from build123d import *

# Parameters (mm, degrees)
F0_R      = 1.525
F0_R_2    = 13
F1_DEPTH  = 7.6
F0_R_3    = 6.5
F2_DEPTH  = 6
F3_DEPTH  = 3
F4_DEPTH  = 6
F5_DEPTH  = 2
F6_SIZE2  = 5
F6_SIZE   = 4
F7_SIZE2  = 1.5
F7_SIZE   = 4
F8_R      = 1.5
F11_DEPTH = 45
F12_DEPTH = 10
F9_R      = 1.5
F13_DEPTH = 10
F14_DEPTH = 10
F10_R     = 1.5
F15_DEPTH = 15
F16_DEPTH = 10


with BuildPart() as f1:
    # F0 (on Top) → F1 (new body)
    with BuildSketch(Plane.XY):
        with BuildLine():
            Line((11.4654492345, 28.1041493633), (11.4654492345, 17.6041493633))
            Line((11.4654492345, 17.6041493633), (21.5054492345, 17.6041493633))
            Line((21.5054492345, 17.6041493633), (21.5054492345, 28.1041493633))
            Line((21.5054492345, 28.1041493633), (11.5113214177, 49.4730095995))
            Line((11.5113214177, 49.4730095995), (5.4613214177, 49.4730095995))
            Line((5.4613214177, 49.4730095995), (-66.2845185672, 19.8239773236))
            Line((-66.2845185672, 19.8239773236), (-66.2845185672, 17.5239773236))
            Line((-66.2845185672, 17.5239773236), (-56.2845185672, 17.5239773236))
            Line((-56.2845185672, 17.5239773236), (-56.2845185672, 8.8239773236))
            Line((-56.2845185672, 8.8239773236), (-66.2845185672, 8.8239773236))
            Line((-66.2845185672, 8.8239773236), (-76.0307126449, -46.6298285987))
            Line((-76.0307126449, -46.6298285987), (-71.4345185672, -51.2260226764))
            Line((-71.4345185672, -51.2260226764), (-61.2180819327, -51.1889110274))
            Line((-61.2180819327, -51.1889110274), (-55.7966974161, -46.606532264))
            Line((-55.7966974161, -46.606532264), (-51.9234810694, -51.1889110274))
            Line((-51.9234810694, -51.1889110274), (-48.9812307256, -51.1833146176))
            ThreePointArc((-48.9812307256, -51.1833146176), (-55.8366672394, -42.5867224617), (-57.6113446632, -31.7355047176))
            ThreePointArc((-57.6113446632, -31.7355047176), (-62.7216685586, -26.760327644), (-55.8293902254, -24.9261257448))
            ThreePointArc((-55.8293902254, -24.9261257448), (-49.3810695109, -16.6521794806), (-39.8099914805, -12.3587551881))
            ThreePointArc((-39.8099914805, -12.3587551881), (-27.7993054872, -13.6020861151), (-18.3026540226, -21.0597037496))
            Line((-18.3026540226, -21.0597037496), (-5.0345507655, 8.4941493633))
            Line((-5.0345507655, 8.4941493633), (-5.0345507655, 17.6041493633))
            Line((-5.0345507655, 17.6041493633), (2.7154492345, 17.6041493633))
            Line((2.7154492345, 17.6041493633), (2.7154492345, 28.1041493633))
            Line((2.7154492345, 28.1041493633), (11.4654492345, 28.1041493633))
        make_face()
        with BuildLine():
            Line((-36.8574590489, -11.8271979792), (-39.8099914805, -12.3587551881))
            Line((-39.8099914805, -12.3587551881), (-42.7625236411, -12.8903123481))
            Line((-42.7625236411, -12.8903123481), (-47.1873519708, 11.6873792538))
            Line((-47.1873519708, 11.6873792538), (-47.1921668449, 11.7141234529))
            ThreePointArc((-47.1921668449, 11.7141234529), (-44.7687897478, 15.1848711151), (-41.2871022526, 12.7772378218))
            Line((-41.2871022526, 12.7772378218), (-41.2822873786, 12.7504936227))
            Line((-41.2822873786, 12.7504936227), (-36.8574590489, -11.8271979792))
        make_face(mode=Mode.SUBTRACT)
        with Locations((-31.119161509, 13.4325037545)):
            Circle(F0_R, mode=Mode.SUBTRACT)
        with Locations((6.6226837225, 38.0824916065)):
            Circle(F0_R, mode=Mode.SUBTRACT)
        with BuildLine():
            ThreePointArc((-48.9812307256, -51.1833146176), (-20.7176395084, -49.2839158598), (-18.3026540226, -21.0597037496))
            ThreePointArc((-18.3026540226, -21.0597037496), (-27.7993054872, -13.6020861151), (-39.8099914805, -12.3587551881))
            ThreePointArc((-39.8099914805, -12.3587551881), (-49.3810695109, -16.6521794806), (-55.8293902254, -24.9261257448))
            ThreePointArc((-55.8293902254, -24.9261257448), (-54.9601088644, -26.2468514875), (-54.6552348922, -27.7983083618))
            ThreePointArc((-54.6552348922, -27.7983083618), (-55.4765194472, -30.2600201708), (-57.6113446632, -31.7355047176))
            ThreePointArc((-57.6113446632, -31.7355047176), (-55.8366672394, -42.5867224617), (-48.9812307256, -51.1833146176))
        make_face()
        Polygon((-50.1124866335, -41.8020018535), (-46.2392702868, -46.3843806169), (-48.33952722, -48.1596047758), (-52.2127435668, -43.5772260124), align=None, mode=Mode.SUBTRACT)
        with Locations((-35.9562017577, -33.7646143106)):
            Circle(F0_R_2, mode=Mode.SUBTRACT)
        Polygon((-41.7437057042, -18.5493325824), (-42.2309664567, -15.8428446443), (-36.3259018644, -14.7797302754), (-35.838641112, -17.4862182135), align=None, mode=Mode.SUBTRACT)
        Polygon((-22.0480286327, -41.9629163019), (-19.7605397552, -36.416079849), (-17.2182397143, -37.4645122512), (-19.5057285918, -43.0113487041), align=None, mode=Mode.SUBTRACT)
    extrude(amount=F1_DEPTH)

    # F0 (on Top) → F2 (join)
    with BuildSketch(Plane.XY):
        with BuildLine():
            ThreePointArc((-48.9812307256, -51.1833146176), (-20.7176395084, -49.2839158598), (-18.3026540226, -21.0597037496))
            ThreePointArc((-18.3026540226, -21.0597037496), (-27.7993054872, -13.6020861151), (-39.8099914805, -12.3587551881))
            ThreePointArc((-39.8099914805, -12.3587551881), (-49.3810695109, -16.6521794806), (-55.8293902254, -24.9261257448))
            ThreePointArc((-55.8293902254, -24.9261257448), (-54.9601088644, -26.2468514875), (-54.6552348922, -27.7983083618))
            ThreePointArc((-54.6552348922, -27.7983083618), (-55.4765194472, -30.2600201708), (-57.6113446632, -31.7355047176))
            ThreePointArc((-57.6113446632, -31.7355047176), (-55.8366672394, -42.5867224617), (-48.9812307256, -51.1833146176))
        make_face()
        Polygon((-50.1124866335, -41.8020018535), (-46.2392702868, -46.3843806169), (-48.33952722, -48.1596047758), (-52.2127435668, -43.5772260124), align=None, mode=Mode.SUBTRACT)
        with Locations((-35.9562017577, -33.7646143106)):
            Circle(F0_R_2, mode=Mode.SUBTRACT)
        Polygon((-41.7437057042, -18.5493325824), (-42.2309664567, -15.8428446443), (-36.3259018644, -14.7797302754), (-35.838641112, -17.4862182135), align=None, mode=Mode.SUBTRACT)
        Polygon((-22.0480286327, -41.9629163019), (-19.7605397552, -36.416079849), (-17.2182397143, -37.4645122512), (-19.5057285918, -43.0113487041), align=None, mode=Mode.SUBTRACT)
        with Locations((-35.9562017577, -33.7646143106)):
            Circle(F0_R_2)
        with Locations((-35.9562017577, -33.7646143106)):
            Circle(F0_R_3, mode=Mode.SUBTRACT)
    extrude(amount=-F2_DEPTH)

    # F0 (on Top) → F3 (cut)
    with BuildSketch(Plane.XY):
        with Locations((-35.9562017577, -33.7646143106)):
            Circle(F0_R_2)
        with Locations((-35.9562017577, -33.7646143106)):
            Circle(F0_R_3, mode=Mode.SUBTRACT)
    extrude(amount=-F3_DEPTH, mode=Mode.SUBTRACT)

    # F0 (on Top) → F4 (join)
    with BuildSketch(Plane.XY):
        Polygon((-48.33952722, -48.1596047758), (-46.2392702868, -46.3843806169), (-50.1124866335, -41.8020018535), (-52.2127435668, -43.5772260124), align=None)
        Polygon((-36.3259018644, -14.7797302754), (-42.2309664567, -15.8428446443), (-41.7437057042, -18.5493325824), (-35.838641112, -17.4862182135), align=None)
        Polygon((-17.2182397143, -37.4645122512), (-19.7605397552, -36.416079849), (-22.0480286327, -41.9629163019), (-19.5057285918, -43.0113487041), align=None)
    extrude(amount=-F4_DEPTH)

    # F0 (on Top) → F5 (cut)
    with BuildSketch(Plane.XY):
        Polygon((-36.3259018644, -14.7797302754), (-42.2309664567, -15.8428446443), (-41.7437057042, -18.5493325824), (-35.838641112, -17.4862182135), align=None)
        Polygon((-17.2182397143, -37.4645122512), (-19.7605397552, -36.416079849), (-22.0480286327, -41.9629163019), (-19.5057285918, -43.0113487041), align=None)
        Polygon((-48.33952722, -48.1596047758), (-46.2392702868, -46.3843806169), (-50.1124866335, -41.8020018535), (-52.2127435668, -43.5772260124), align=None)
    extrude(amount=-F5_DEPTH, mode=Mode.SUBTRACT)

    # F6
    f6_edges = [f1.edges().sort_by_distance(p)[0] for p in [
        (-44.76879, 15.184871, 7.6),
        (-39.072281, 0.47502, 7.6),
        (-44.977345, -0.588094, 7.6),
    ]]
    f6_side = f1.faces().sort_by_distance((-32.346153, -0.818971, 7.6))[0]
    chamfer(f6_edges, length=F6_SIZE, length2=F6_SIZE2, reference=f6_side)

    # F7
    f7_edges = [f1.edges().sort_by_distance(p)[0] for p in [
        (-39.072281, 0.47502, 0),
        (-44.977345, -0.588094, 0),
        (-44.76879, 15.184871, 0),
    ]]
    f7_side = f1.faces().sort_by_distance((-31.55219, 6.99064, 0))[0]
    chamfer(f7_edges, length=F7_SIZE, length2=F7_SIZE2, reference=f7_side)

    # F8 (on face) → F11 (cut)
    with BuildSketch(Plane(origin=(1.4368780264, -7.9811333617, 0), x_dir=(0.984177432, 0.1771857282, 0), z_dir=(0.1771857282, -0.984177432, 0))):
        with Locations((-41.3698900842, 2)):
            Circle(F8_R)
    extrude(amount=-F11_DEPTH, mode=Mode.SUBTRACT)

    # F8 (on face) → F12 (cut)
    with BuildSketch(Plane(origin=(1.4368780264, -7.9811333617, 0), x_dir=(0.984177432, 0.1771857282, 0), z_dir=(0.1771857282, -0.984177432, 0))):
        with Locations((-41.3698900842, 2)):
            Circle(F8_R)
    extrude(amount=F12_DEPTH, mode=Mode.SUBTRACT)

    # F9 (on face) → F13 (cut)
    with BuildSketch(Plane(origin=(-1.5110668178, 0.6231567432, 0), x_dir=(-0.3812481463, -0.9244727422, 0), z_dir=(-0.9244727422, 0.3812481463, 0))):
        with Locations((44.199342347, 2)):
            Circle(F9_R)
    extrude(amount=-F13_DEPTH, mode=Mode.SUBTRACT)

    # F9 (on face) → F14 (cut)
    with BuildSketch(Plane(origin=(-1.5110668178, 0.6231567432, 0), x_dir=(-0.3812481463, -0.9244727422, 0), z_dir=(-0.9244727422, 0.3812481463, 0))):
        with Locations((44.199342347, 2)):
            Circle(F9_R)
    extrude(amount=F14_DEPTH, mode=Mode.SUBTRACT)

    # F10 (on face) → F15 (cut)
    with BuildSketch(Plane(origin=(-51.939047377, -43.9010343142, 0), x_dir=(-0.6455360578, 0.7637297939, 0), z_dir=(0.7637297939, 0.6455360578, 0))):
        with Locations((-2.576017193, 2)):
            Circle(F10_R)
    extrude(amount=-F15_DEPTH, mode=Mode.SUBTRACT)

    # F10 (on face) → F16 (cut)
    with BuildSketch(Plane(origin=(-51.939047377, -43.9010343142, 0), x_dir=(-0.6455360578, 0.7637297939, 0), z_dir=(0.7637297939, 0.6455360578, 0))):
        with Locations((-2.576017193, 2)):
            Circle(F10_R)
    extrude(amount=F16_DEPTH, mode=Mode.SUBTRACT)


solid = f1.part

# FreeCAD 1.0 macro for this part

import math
import FreeCAD as App
import Part
import Sketcher

V = App.Vector
Q = App.Units.Quantity


def edges_at(feature, points):
    """Names of the edges that pass closest to the given points."""
    edges = feature.Shape.Edges
    near = lambda p: min(range(len(edges)), key=lambda i: edges[i].distToShape(Part.Vertex(*p))[0])
    return sorted({f"Edge{near(p) + 1}" for p in points})


def add_polygon(sketch, points):
    """Adds a closed chain of lines whose ends are joined by coincident constraints."""
    first, n = sketch.GeometryCount, len(points)
    for a, b in zip(points, points[1:] + points[:1]):
        sketch.addGeometry(Part.LineSegment(App.Vector(*a, 0), App.Vector(*b, 0)), False)
    for i in range(n):
        sketch.addConstraint(Sketcher.Constraint("Coincident", first + i, 2, first + (i + 1) % n, 1))

doc = App.newDocument("Part")
params = doc.addObject("Spreadsheet::Sheet", "Params")
for row, (alias, value) in enumerate([
    ("sketch1_diameter", "26 mm"),
    ("sketch1_radius", "4.1 mm"),
    ("sketch1_radius2", "4.1 mm"),
    ("sketch1_diameter2", "3.05 mm"),
    ("sketch1_diameter3", "3.05 mm"),
    ("pad1_length", "7.6 mm"),
    ("sketch2_diameter", "13 mm"),
    ("sketch2_radius", "4.1 mm"),
    ("sketch2_radius2", "21.75 mm"),
    ("sketch2_length", "6 mm"),
    ("sketch2_length2", "2.75 mm"),
    ("pad2_length", "6 mm"),
    ("sketch3_diameter", "26 mm"),
    ("sketch3_diameter2", "13 mm"),
    ("pocket1_length", "3 mm"),
    ("sketch4_length", "6 mm"),
    ("sketch4_length2", "2.75 mm"),
    ("pad3_length", "6 mm"),
    ("sketch5_length", "6 mm"),
    ("sketch5_length2", "2.75 mm"),
    ("pocket2_length", "2 mm"),
    ("chamfer_size", "4 mm"),
    ("chamfer_size2", "5 mm"),
    ("chamfer2_size", "4 mm"),
    ("chamfer2_size2", "1.5 mm"),
    ("sketch6_diameter", "3 mm"),
    ("pocket3_length", "45 mm"),
    ("sketch7_diameter", "3 mm"),
    ("pocket4_length", "10 mm"),
    ("sketch8_diameter", "3 mm"),
    ("pocket5_length", "10 mm"),
    ("sketch9_diameter", "3 mm"),
    ("pocket6_length", "10 mm"),
    ("sketch10_diameter", "3 mm"),
    ("pocket7_length", "15 mm"),
    ("sketch11_diameter", "3 mm"),
    ("pocket8_length", "10 mm"),
], start=1):
    params.set(f"A{row}", alias)
    params.set(f"B{row}", "=" + value)
    params.setAlias(f"B{row}", alias)

body = doc.addObject("PartDesign::Body", "Body")

# Sketch on XY plane
sketch1 = body.newObject("Sketcher::SketchObject", "Sketch")
sketch1.AttachmentSupport = (doc.getObject("XY_Plane"), [""])
sketch1.MapMode = "FlatFace"
sketch1.addGeometry(Part.LineSegment(V(-5.034551, 8.494149, 0), V(-5.034551, 17.604149, 0)), False)  # 0
sketch1.addGeometry(Part.LineSegment(V(-5.034551, 17.604149, 0), V(2.715449, 17.604149, 0)), False)  # 1
sketch1.addGeometry(Part.LineSegment(V(2.715449, 17.604149, 0), V(2.715449, 28.104149, 0)), False)  # 2
sketch1.addGeometry(Part.LineSegment(V(2.715449, 28.104149, 0), V(11.465449, 28.104149, 0)), False)  # 3
sketch1.addGeometry(Part.LineSegment(V(11.465449, 28.104149, 0), V(11.465449, 17.604149, 0)), False)  # 4
sketch1.addGeometry(Part.LineSegment(V(11.465449, 17.604149, 0), V(21.505449, 17.604149, 0)), False)  # 5
sketch1.addGeometry(Part.LineSegment(V(21.505449, 17.604149, 0), V(21.505449, 28.104149, 0)), False)  # 6
sketch1.addGeometry(Part.LineSegment(V(21.505449, 28.104149, 0), V(11.511321, 49.47301, 0)), False)  # 7
sketch1.addGeometry(Part.LineSegment(V(11.511321, 49.47301, 0), V(5.461321, 49.47301, 0)), False)  # 8
sketch1.addGeometry(Part.LineSegment(V(5.461321, 49.47301, 0), V(-66.284519, 19.823977, 0)), False)  # 9
sketch1.addGeometry(Part.LineSegment(V(-66.284519, 19.823977, 0), V(-66.284519, 17.523977, 0)), False)  # 10
sketch1.addGeometry(Part.LineSegment(V(-66.284519, 17.523977, 0), V(-56.284519, 17.523977, 0)), False)  # 11
sketch1.addGeometry(Part.LineSegment(V(-56.284519, 17.523977, 0), V(-56.284519, 8.823977, 0)), False)  # 12
sketch1.addGeometry(Part.LineSegment(V(-56.284519, 8.823977, 0), V(-66.284519, 8.823977, 0)), False)  # 13
sketch1.addGeometry(Part.LineSegment(V(-66.284519, 8.823977, 0), V(-76.030713, -46.629829, 0)), False)  # 14
sketch1.addGeometry(Part.LineSegment(V(-76.030713, -46.629829, 0), V(-71.434519, -51.226023, 0)), False)  # 15
sketch1.addGeometry(Part.LineSegment(V(-71.434519, -51.226023, 0), V(-61.218082, -51.188911, 0)), False)  # 16
sketch1.addGeometry(Part.LineSegment(V(-61.218082, -51.188911, 0), V(-55.796697, -46.606532, 0)), False)  # 17
sketch1.addGeometry(Part.LineSegment(V(-55.796697, -46.606532, 0), V(-51.923481, -51.188911, 0)), False)  # 18
sketch1.addGeometry(Part.LineSegment(V(-51.923481, -51.188911, 0), V(-48.981231, -51.183315, 0)), False)  # 19
sketch1.addGeometry(Part.ArcOfCircle(Part.Circle(V(-35.956202, -33.764614, 0), V(0, 0, 1), 21.75), math.radians(-126.787716), math.radians(35.741822)), False)  # 20
sketch1.addGeometry(Part.LineSegment(V(-18.302654, -21.059704, 0), V(-5.034551, 8.494149, 0)), False)  # 21
add_polygon(sketch1, [(-52.212744, -43.577226), (-50.112487, -41.802002), (-46.23927, -46.384381), (-48.339527, -48.159605)])  # lines 22-25
sketch1.addGeometry(Part.ArcOfCircle(Part.Circle(V(-58.755235, -27.798308, 0), V(0, 0, 1), 4.1), math.radians(0), math.radians(286.200388)), False)  # 26
sketch1.addGeometry(Part.ArcOfCircle(Part.Circle(V(-58.755235, -27.798308, 0), V(0, 0, 1), 4.1), math.radians(-73.799612), math.radians(0)), False)  # 27
sketch1.addGeometry(Part.Circle(V(-35.956202, -33.764614, 0), V(0, 0, 1), 13), False)  # 28
add_polygon(sketch1, [(-35.838641, -17.486218), (-41.743706, -18.549333), (-42.230966, -15.842845), (-36.325902, -14.77973)])  # lines 29-32
add_polygon(sketch1, [(-19.505729, -43.011349), (-22.048029, -41.962916), (-19.76054, -36.41608), (-17.21824, -37.464512)])  # lines 33-36
sketch1.addGeometry(Part.LineSegment(V(-36.857459, -11.827198, 0), V(-39.809991, -12.358755, 0)), False)  # 37
sketch1.addGeometry(Part.LineSegment(V(-39.809991, -12.358755, 0), V(-42.762524, -12.890312, 0)), False)  # 38
sketch1.addGeometry(Part.LineSegment(V(-42.762524, -12.890312, 0), V(-47.187352, 11.687379, 0)), False)  # 39
sketch1.addGeometry(Part.LineSegment(V(-47.187352, 11.687379, 0), V(-47.192167, 11.714123, 0)), False)  # 40
sketch1.addGeometry(Part.ArcOfCircle(Part.Circle(V(-44.237227, 12.232309, 0), V(0, 0, 1), 3.000031), math.radians(10.465372), math.radians(189.946387)), False)  # 41
sketch1.addGeometry(Part.LineSegment(V(-41.287102, 12.777238, 0), V(-41.282287, 12.750494, 0)), False)  # 42
sketch1.addGeometry(Part.LineSegment(V(-41.282287, 12.750494, 0), V(-36.857459, -11.827198, 0)), False)  # 43
sketch1.addGeometry(Part.Circle(V(-31.119162, 13.432504, 0), V(0, 0, 1), 1.525), False)  # 44
sketch1.addGeometry(Part.Circle(V(6.622684, 38.082492, 0), V(0, 0, 1), 1.525), False)  # 45
sketch1.addConstraint([
    Sketcher.Constraint("Coincident", 0, 2, 1, 1),
    Sketcher.Constraint("Coincident", 1, 2, 2, 1),
    Sketcher.Constraint("Coincident", 2, 2, 3, 1),
    Sketcher.Constraint("Coincident", 3, 2, 4, 1),
    Sketcher.Constraint("Coincident", 4, 2, 5, 1),
    Sketcher.Constraint("Coincident", 5, 2, 6, 1),
    Sketcher.Constraint("Coincident", 6, 2, 7, 1),
    Sketcher.Constraint("Coincident", 7, 2, 8, 1),
    Sketcher.Constraint("Coincident", 8, 2, 9, 1),
    Sketcher.Constraint("Coincident", 9, 2, 10, 1),
    Sketcher.Constraint("Coincident", 10, 2, 11, 1),
    Sketcher.Constraint("Coincident", 11, 2, 12, 1),
    Sketcher.Constraint("Coincident", 12, 2, 13, 1),
    Sketcher.Constraint("Coincident", 13, 2, 14, 1),
    Sketcher.Constraint("Coincident", 14, 2, 15, 1),
    Sketcher.Constraint("Coincident", 15, 2, 16, 1),
    Sketcher.Constraint("Coincident", 16, 2, 17, 1),
    Sketcher.Constraint("Coincident", 17, 2, 18, 1),
    Sketcher.Constraint("Coincident", 18, 2, 19, 1),
    Sketcher.Constraint("Coincident", 19, 2, 20, 1),
    Sketcher.Constraint("Coincident", 20, 2, 21, 1),
    Sketcher.Constraint("Coincident", 21, 2, 0, 1),
    Sketcher.Constraint("Coincident", 26, 1, 27, 2),
    Sketcher.Constraint("Coincident", 27, 1, 26, 2),
    Sketcher.Constraint("Coincident", 37, 2, 38, 1),
    Sketcher.Constraint("Coincident", 38, 2, 39, 1),
    Sketcher.Constraint("Coincident", 39, 2, 40, 1),
    Sketcher.Constraint("Coincident", 40, 2, 41, 2),
    Sketcher.Constraint("Coincident", 41, 1, 42, 1),
    Sketcher.Constraint("Coincident", 42, 2, 43, 1),
    Sketcher.Constraint("Coincident", 43, 2, 37, 1),
    Sketcher.Constraint("Vertical", 0),
    Sketcher.Constraint("Horizontal", 1),
    Sketcher.Constraint("Vertical", 2),
    Sketcher.Constraint("Horizontal", 3),
    Sketcher.Constraint("Vertical", 4),
    Sketcher.Constraint("Horizontal", 5),
    Sketcher.Constraint("Vertical", 6),
    Sketcher.Constraint("Horizontal", 8),
    Sketcher.Constraint("Vertical", 10),
    Sketcher.Constraint("Horizontal", 11),
    Sketcher.Constraint("Vertical", 12),
    Sketcher.Constraint("Horizontal", 13),
    Sketcher.Constraint("Coincident", 28, 3, 20, 3),
    Sketcher.Constraint("Diameter", 28, Q("26 mm")),
    Sketcher.Constraint("Radius", 26, Q("4.1 mm")),
    Sketcher.Constraint("Radius", 27, Q("4.1 mm")),
    Sketcher.Constraint("Diameter", 44, Q("3.05 mm")),
    Sketcher.Constraint("Diameter", 45, Q("3.05 mm")),
    Sketcher.Constraint("DistanceX", 11, 1, 11, 2, Q("10 mm")),
    Sketcher.Constraint("DistanceX", 13, 2, 13, 1, Q("10 mm")),
    Sketcher.Constraint("Radius", 20, Q("21.75 mm")),
    Sketcher.Constraint("Distance", 18, Q("6 mm")),
    Sketcher.Constraint("Distance", 23, Q("6 mm")),
    Sketcher.Constraint("Distance", 25, Q("6 mm")),
    Sketcher.Constraint("Distance", 29, Q("6 mm")),
    Sketcher.Constraint("Distance", 31, Q("6 mm")),
    Sketcher.Constraint("Distance", 34, Q("6 mm")),
    Sketcher.Constraint("Distance", 36, Q("6 mm")),
    Sketcher.Constraint("Distance", 37, Q("3 mm")),
    Sketcher.Constraint("Distance", 38, Q("3 mm")),
    Sketcher.Constraint("DistanceY", 2, 1, 2, 2, Q("10.5 mm")),
    Sketcher.Constraint("DistanceY", 4, 2, 4, 1, Q("10.5 mm")),
    Sketcher.Constraint("DistanceY", 6, 1, 6, 2, Q("10.5 mm")),
    Sketcher.Constraint("DistanceY", 10, 2, 10, 1, Q("2.3 mm")),
    Sketcher.Constraint("DistanceY", 12, 2, 12, 1, Q("8.7 mm")),
    Sketcher.Constraint("Distance", 15, Q("6.5 mm")),
    Sketcher.Constraint("DistanceX", 1, 1, 1, 2, Q("7.75 mm")),
    Sketcher.Constraint("DistanceX", 3, 1, 3, 2, Q("8.75 mm")),
    Sketcher.Constraint("DistanceX", 5, 1, 5, 2, Q("10.04 mm")),
    Sketcher.Constraint("DistanceX", 8, 2, 8, 1, Q("6.05 mm")),
    Sketcher.Constraint("DistanceY", 0, 1, 0, 2, Q("9.11 mm")),
    Sketcher.Constraint("Distance", 22, Q("2.75 mm")),
    Sketcher.Constraint("Distance", 24, Q("2.75 mm")),
    Sketcher.Constraint("Distance", 30, Q("2.75 mm")),
    Sketcher.Constraint("Distance", 32, Q("2.75 mm")),
    Sketcher.Constraint("Distance", 33, Q("2.75 mm")),
    Sketcher.Constraint("Distance", 35, Q("2.75 mm")),
    Sketcher.Constraint("Radius", 41, Q("3.000031 mm")),
    Sketcher.Constraint("DistanceY", 22, 2, -1, 1, Q("41.802002 mm")),
    Sketcher.Constraint("DistanceX", 20, 3, -1, 1, Q("35.956202 mm")),
    Sketcher.Constraint("DistanceX", 31, 2, -1, 1, Q("36.325902 mm")),
    Sketcher.Constraint("DistanceY", 26, 3, 45, 3, Q("65.8808 mm")),
    Sketcher.Constraint("DistanceX", 16, 2, 18, 2, Q("9.294601 mm")),
    Sketcher.Constraint("DistanceY", 19, 2, 20, 3, Q("17.4187 mm")),
    Sketcher.Constraint("DistanceX", 27, 1, 25, 2, Q("5.398601 mm")),
    Sketcher.Constraint("DistanceY", 33, 2, 20, 3, Q("8.198302 mm")),
    Sketcher.Constraint("DistanceX", 24, 2, 33, 2, Q("26.291499 mm")),
    Sketcher.Constraint("DistanceX", 32, 2, 34, 2, Q("16.078101 mm")),
    Sketcher.Constraint("DistanceX", 34, 2, 35, 2, Q("2.5423 mm")),
    Sketcher.Constraint("DistanceY", 12, 2, 39, 2, Q("2.863402 mm")),
    Sketcher.Constraint("Distance", 7, Q("23.590481 mm")),
    Sketcher.Constraint("DistanceY", 26, 3, -1, 1, Q("27.798308 mm")),
    Sketcher.Constraint("DistanceY", -1, 1, 41, 3, Q("12.232309 mm")),
    Sketcher.Constraint("DistanceX", 44, 3, -1, 1, Q("31.119162 mm")),
    Sketcher.Constraint("DistanceX", 0, 2, -1, 1, Q("5.034551 mm")),
    Sketcher.Constraint("DistanceY", -1, 1, 0, 2, Q("17.604149 mm")),
    Sketcher.Constraint("DistanceX", -1, 1, 7, 2, Q("11.511321 mm")),
    Sketcher.Constraint("DistanceX", 9, 2, -1, 1, Q("66.284519 mm")),
    Sketcher.Constraint("DistanceY", 14, 2, -1, 1, Q("46.629829 mm")),
    Sketcher.Constraint("DistanceX", 15, 2, -1, 1, Q("71.434519 mm")),
    Sketcher.Constraint("DistanceX", 16, 2, -1, 1, Q("61.218082 mm")),
    Sketcher.Constraint("DistanceY", 16, 2, -1, 1, Q("51.188911 mm")),
    Sketcher.Constraint("DistanceY", 18, 2, -1, 1, Q("51.188911 mm")),
    Sketcher.Constraint("DistanceX", 23, 2, -1, 1, Q("46.23927 mm")),
    Sketcher.Constraint("DistanceY", 23, 2, -1, 1, Q("46.384381 mm")),
    Sketcher.Constraint("DistanceY", 26, 1, -1, 1, Q("27.798308 mm")),
    Sketcher.Constraint("DistanceY", 31, 2, -1, 1, Q("14.77973 mm")),
    Sketcher.Constraint("DistanceX", 32, 2, -1, 1, Q("35.838641 mm")),
    Sketcher.Constraint("DistanceX", 33, 2, -1, 1, Q("22.048029 mm")),
    Sketcher.Constraint("DistanceY", 34, 2, -1, 1, Q("36.41608 mm")),
    Sketcher.Constraint("DistanceX", 37, 2, -1, 1, Q("39.809991 mm")),
    Sketcher.Constraint("DistanceX", 39, 2, -1, 1, Q("47.187352 mm")),
    Sketcher.Constraint("DistanceY", -1, 1, 39, 2, Q("11.687379 mm")),
    Sketcher.Constraint("DistanceX", 43, 2, -1, 1, Q("36.857459 mm")),
    Sketcher.Constraint("DistanceY", 20, 3, 44, 3, Q("47.197118 mm")),
    Sketcher.Constraint("DistanceX", 41, 3, 45, 3, Q("50.859911 mm")),
    Sketcher.Constraint("DistanceX", 26, 3, 45, 3, Q("65.377919 mm")),
    Sketcher.Constraint("DistanceX", 9, 2, 41, 3, Q("22.047291 mm")),
    Sketcher.Constraint("DistanceX", 14, 2, 20, 3, Q("40.074511 mm")),
    Sketcher.Constraint("DistanceY", 16, 2, 17, 2, Q("4.582379 mm")),
    Sketcher.Constraint("DistanceY", 20, 3, 20, 2, Q("12.704911 mm")),
    Sketcher.Constraint("DistanceX", 26, 1, 29, 2, Q("12.911529 mm")),
    Sketcher.Constraint("DistanceY", 30, 2, 37, 2, Q("3.484089 mm")),
    Sketcher.Constraint("DistanceY", 29, 2, 38, 2, Q("5.65902 mm")),
    Sketcher.Constraint("DistanceX", 40, 2, 41, 3, Q("2.95494 mm")),
    Sketcher.Constraint("DistanceY", 41, 3, 41, 1, Q("0.544929 mm")),
    Sketcher.Constraint("DistanceX", 41, 3, 42, 2, Q("2.95494 mm")),
    Sketcher.Constraint("DistanceY", 40, 2, 42, 2, Q("1.03637 mm")),
])
sketch1.setExpression("Constraints[56]", "Params.sketch1_diameter")
sketch1.setExpression("Constraints[57]", "Params.sketch1_radius")
sketch1.setExpression("Constraints[58]", "Params.sketch1_radius2")
sketch1.setExpression("Constraints[59]", "Params.sketch1_diameter2")
sketch1.setExpression("Constraints[60]", "Params.sketch1_diameter3")
pad1 = body.newObject("PartDesign::Pad", "Pad")
pad1.Profile = sketch1
pad1.setExpression("Length", "Params.pad1_length")

# Sketch on XY plane
sketch2 = body.newObject("Sketcher::SketchObject", "Sketch001")
sketch2.AttachmentSupport = (doc.getObject("XY_Plane"), [""])
sketch2.MapMode = "FlatFace"
sketch2.addGeometry(Part.ArcOfCircle(Part.Circle(V(-36, -33.8, 0), V(0, 0, 1), 21.8), math.radians(36), math.radians(100)), False)  # 0
sketch2.addGeometry(Part.ArcOfCircle(Part.Circle(V(-36, -33.8, 0), V(0, 0, 1), 21.8), math.radians(100), math.radians(156)), False)  # 1
sketch2.addGeometry(Part.ArcOfCircle(Part.Circle(V(-58.8, -27.8, 0), V(0, 0, 1), 4.1), math.radians(0), math.radians(44)), False)  # 2
sketch2.addGeometry(Part.ArcOfCircle(Part.Circle(V(-58.8, -27.8, 0), V(0, 0, 1), 4.1), math.radians(-74), math.radians(0)), False)  # 3
sketch2.addGeometry(Part.ArcOfCircle(Part.Circle(V(-36, -33.8, 0), V(0, 0, 1), 21.8), math.radians(175), math.radians(396)), False)  # 4
add_polygon(sketch2, [(-52.2, -43.6), (-50.1, -41.8), (-46.2, -46.4), (-48.3, -48.2)])  # lines 5-8
sketch2.addGeometry(Part.Circle(V(-36, -33.8, 0), V(0, 0, 1), 6.5), False)  # 9
add_polygon(sketch2, [(-19.5, -43), (-22, -42), (-19.8, -36.4), (-17.2, -37.5)])  # lines 10-13
add_polygon(sketch2, [(-35.8, -17.5), (-41.7, -18.5), (-42.2, -15.8), (-36.3, -14.8)])  # lines 14-17
sketch2.addConstraint([
    Sketcher.Constraint("Tangent", 0, 2, 1, 1),
    Sketcher.Constraint("Coincident", 1, 2, 2, 2),
    Sketcher.Constraint("Tangent", 2, 1, 3, 2),
    Sketcher.Constraint("Coincident", 3, 1, 4, 1),
    Sketcher.Constraint("Tangent", 4, 2, 0, 1),
    Sketcher.Constraint("Coincident", 9, 3, 0, 3),
    Sketcher.Constraint("Equal", 0, 1),
    Sketcher.Constraint("Equal", 2, 3),
    Sketcher.Constraint("Equal", 1, 4),
    Sketcher.Constraint("Perpendicular", 5, 6),
    Sketcher.Constraint("Perpendicular", 6, 7),
    Sketcher.Constraint("Perpendicular", 7, 8),
    Sketcher.Constraint("Perpendicular", 10, 11),
    Sketcher.Constraint("Perpendicular", 11, 12),
    Sketcher.Constraint("Perpendicular", 12, 13),
    Sketcher.Constraint("Perpendicular", 14, 15),
    Sketcher.Constraint("Perpendicular", 15, 16),
    Sketcher.Constraint("Perpendicular", 16, 17),
    Sketcher.Constraint("Horizontal", 3, 3, 2, 1),
    Sketcher.Constraint("Equal", 7, 10),
    Sketcher.Constraint("Equal", 8, 11),
    Sketcher.Constraint("Equal", 13, 14),
    Sketcher.Constraint("Equal", 12, 15),
    Sketcher.Constraint("Diameter", 9, Q("13 mm")),
    Sketcher.Constraint("Radius", 2, Q("4.1 mm")),
    Sketcher.Constraint("Radius", 0, Q("21.75 mm")),
    Sketcher.Constraint("Distance", 6, Q("6 mm")),
    Sketcher.Constraint("Distance", 5, Q("2.75 mm")),
    Sketcher.Constraint("DistanceY", 5, 2, -1, 1, Q("41.802002 mm")),
    Sketcher.Constraint("DistanceX", 0, 3, -1, 1, Q("35.956202 mm")),
    Sketcher.Constraint("DistanceX", 16, 2, -1, 1, Q("36.325902 mm")),
    Sketcher.Constraint("DistanceX", 1, 2, 0, 2, Q("16.019399 mm")),
    Sketcher.Constraint("DistanceY", 7, 2, 3, 1, Q("16.4241 mm")),
    Sketcher.Constraint("DistanceX", 3, 1, 8, 2, Q("5.398601 mm")),
    Sketcher.Constraint("DistanceY", 10, 2, 4, 3, Q("8.198302 mm")),
    Sketcher.Constraint("DistanceX", 11, 2, 12, 2, Q("2.5423 mm")),
    Sketcher.Constraint("DistanceY", 2, 3, -1, 1, Q("27.798308 mm")),
    Sketcher.Constraint("DistanceX", 0, 2, -1, 1, Q("39.809991 mm")),
    Sketcher.Constraint("DistanceX", 6, 2, -1, 1, Q("46.23927 mm")),
    Sketcher.Constraint("DistanceX", 10, 2, -1, 1, Q("22.048029 mm")),
    Sketcher.Constraint("DistanceY", 16, 2, -1, 1, Q("14.77973 mm")),
    Sketcher.Constraint("DistanceX", 17, 2, -1, 1, Q("35.838641 mm")),
    Sketcher.Constraint("DistanceY", 0, 3, 4, 2, Q("12.704911 mm")),
])
sketch2.setExpression("Constraints[35]", "Params.sketch2_diameter")
sketch2.setExpression("Constraints[36]", "Params.sketch2_radius")
sketch2.setExpression("Constraints[37]", "Params.sketch2_radius2")
sketch2.setExpression("Constraints[38]", "Params.sketch2_length")
sketch2.setExpression("Constraints[39]", "Params.sketch2_length2")
pad2 = body.newObject("PartDesign::Pad", "Pad001")
pad2.Profile = sketch2
pad2.setExpression("Length", "Params.pad2_length")
pad2.Reversed = True

# Sketch on XY plane
sketch3 = body.newObject("Sketcher::SketchObject", "Sketch002")
sketch3.AttachmentSupport = (doc.getObject("XY_Plane"), [""])
sketch3.MapMode = "FlatFace"
sketch3.addGeometry([
    Part.Circle(V(-36, -34, 0), V(0, 0, 1), 13),
    Part.Circle(V(-36, -34, 0), V(0, 0, 1), 6),
], False)
sketch3.addConstraint([
    Sketcher.Constraint("Coincident", 1, 3, 0, 3),
    Sketcher.Constraint("Diameter", 0, Q("26 mm")),
    Sketcher.Constraint("Diameter", 1, Q("13 mm")),
    Sketcher.Constraint("DistanceX", 0, 3, -1, 1, Q("35.956202 mm")),
    Sketcher.Constraint("DistanceY", 0, 3, -1, 1, Q("33.764614 mm")),
])
sketch3.setExpression("Constraints[1]", "Params.sketch3_diameter")
sketch3.setExpression("Constraints[2]", "Params.sketch3_diameter2")
pocket1 = body.newObject("PartDesign::Pocket", "Pocket")
pocket1.Profile = sketch3
pocket1.setExpression("Length", "Params.pocket1_length")

# Sketch on XY plane
sketch4 = body.newObject("Sketcher::SketchObject", "Sketch003")
sketch4.AttachmentSupport = (doc.getObject("XY_Plane"), [""])
sketch4.MapMode = "FlatFace"
add_polygon(sketch4, [(-48.3, -48.2), (-46.2, -46.4), (-50.1, -41.8), (-52.2, -43.6)])  # lines 0-3
add_polygon(sketch4, [(-36.3, -14.8), (-42.2, -15.8), (-41.7, -18.5), (-35.8, -17.5)])  # lines 4-7
add_polygon(sketch4, [(-17.2, -37.5), (-19.8, -36.4), (-22, -42), (-19.5, -43)])  # lines 8-11
sketch4.addConstraint([
    Sketcher.Constraint("Perpendicular", 0, 1),
    Sketcher.Constraint("Perpendicular", 1, 2),
    Sketcher.Constraint("Perpendicular", 2, 3),
    Sketcher.Constraint("Perpendicular", 4, 5),
    Sketcher.Constraint("Perpendicular", 5, 6),
    Sketcher.Constraint("Perpendicular", 6, 7),
    Sketcher.Constraint("Perpendicular", 8, 9),
    Sketcher.Constraint("Perpendicular", 9, 10),
    Sketcher.Constraint("Perpendicular", 10, 11),
    Sketcher.Constraint("Equal", 3, 4),
    Sketcher.Constraint("Equal", 2, 5),
    Sketcher.Constraint("Equal", 7, 8),
    Sketcher.Constraint("Equal", 6, 9),
    Sketcher.Constraint("Distance", 1, Q("6 mm")),
    Sketcher.Constraint("Distance", 0, Q("2.75 mm")),
    Sketcher.Constraint("DistanceY", 1, 2, -1, 1, Q("41.802002 mm")),
    Sketcher.Constraint("DistanceX", 7, 2, -1, 1, Q("36.325902 mm")),
    Sketcher.Constraint("DistanceX", 6, 2, 8, 2, Q("16.078101 mm")),
    Sketcher.Constraint("DistanceY", 0, 2, 8, 2, Q("9.968301 mm")),
    Sketcher.Constraint("DistanceX", 3, 2, 9, 2, Q("26.291499 mm")),
    Sketcher.Constraint("DistanceY", 9, 2, 6, 2, Q("24.476698 mm")),
    Sketcher.Constraint("DistanceX", 9, 2, 10, 2, Q("2.5423 mm")),
    Sketcher.Constraint("DistanceX", 0, 2, -1, 1, Q("46.23927 mm")),
    Sketcher.Constraint("DistanceY", 0, 2, -1, 1, Q("46.384381 mm")),
])
sketch4.setExpression("Constraints[25]", "Params.sketch4_length")
sketch4.setExpression("Constraints[26]", "Params.sketch4_length2")
pad3 = body.newObject("PartDesign::Pad", "Pad002")
pad3.Profile = sketch4
pad3.setExpression("Length", "Params.pad3_length")
pad3.Reversed = True

# Sketch on XY plane
sketch5 = body.newObject("Sketcher::SketchObject", "Sketch004")
sketch5.AttachmentSupport = (doc.getObject("XY_Plane"), [""])
sketch5.MapMode = "FlatFace"
add_polygon(sketch5, [(-36.3, -14.8), (-42.2, -15.8), (-41.7, -18.5), (-35.8, -17.5)])  # lines 0-3
add_polygon(sketch5, [(-17.2, -37.5), (-19.8, -36.4), (-22, -42), (-19.5, -43)])  # lines 4-7
add_polygon(sketch5, [(-48.3, -48.2), (-46.2, -46.4), (-50.1, -41.8), (-52.2, -43.6)])  # lines 8-11
sketch5.addConstraint([
    Sketcher.Constraint("Perpendicular", 0, 1),
    Sketcher.Constraint("Perpendicular", 1, 2),
    Sketcher.Constraint("Perpendicular", 2, 3),
    Sketcher.Constraint("Perpendicular", 4, 5),
    Sketcher.Constraint("Perpendicular", 5, 6),
    Sketcher.Constraint("Perpendicular", 6, 7),
    Sketcher.Constraint("Perpendicular", 8, 9),
    Sketcher.Constraint("Perpendicular", 9, 10),
    Sketcher.Constraint("Perpendicular", 10, 11),
    Sketcher.Constraint("Equal", 3, 4),
    Sketcher.Constraint("Equal", 2, 5),
    Sketcher.Constraint("Equal", 6, 8),
    Sketcher.Constraint("Equal", 7, 9),
    Sketcher.Constraint("Distance", 0, Q("6 mm")),
    Sketcher.Constraint("Distance", 1, Q("2.75 mm")),
    Sketcher.Constraint("DistanceY", 9, 2, -1, 1, Q("41.802002 mm")),
    Sketcher.Constraint("DistanceX", 3, 2, -1, 1, Q("36.325902 mm")),
    Sketcher.Constraint("DistanceX", 2, 2, 4, 2, Q("16.078101 mm")),
    Sketcher.Constraint("DistanceY", 5, 2, 2, 2, Q("24.476698 mm")),
    Sketcher.Constraint("DistanceX", 5, 2, 6, 2, Q("2.5423 mm")),
    Sketcher.Constraint("DistanceY", 8, 2, 4, 2, Q("9.968301 mm")),
    Sketcher.Constraint("DistanceX", 11, 2, 5, 2, Q("26.291499 mm")),
    Sketcher.Constraint("DistanceX", 2, 2, -1, 1, Q("35.838641 mm")),
    Sketcher.Constraint("DistanceY", 2, 2, -1, 1, Q("17.486218 mm")),
])
sketch5.setExpression("Constraints[25]", "Params.sketch5_length")
sketch5.setExpression("Constraints[26]", "Params.sketch5_length2")
pocket2 = body.newObject("PartDesign::Pocket", "Pocket001")
pocket2.Profile = sketch5
pocket2.setExpression("Length", "Params.pocket2_length")
doc.recompute()

chamfer = body.newObject("PartDesign::Chamfer", "Chamfer")
chamfer.Base = (pocket2, edges_at(pocket2, [(-44.769, 15.185, 7.6), (-39.07, 0.462, 7.6), (-44.975, -0.601, 7.6)]))
chamfer.ChamferType = "Two distances"
chamfer.setExpression("Size", "Params.chamfer_size")
chamfer.setExpression("Size2", "Params.chamfer_size2")
doc.recompute()

chamfer2 = body.newObject("PartDesign::Chamfer", "Chamfer001")
chamfer2.Base = (chamfer, edges_at(chamfer, [(-39.07, 0.462, 0), (-44.975, -0.601, 0), (-44.769, 15.185, 0)]))
chamfer2.ChamferType = "Two distances"
chamfer2.setExpression("Size", "Params.chamfer2_size")
chamfer2.setExpression("Size2", "Params.chamfer2_size2")
chamfer2.FlipDirection = True

# Sketch on an angled plane
sketch6 = body.newObject("Sketcher::SketchObject", "Sketch005")
sketch6.Placement = App.Placement(V(1.436878, -7.981133, 0), App.Rotation(V(0.984177432, 0.177185728, 0), V(0, 0, 1), V(0.177185728, -0.984177432, 0), "ZXY"))
sketch6.addGeometry(Part.Circle(V(-41.4, 2, 0), V(0, 0, 1), 1.5), False)
sketch6.addConstraint([
    Sketcher.Constraint("Diameter", 0, Q("3 mm")),
    Sketcher.Constraint("DistanceY", -1, 1, 0, 3, Q("2 mm")),
    Sketcher.Constraint("DistanceX", 0, 3, -1, 1, Q("41.36989 mm")),
])
sketch6.setExpression("Constraints[0]", "Params.sketch6_diameter")
pocket3 = body.newObject("PartDesign::Pocket", "Pocket002")
pocket3.Profile = sketch6
pocket3.setExpression("Length", "Params.pocket3_length")

# Sketch on an angled plane
sketch7 = body.newObject("Sketcher::SketchObject", "Sketch006")
sketch7.Placement = App.Placement(V(1.436878, -7.981133, 0), App.Rotation(V(0.984177432, 0.177185728, 0), V(0, 0, 1), V(0.177185728, -0.984177432, 0), "ZXY"))
sketch7.addGeometry(Part.Circle(V(-41.4, 2, 0), V(0, 0, 1), 1.5), False)
sketch7.addConstraint([
    Sketcher.Constraint("Diameter", 0, Q("3 mm")),
    Sketcher.Constraint("DistanceY", -1, 1, 0, 3, Q("2 mm")),
    Sketcher.Constraint("DistanceX", 0, 3, -1, 1, Q("41.36989 mm")),
])
sketch7.setExpression("Constraints[0]", "Params.sketch7_diameter")
pocket4 = body.newObject("PartDesign::Pocket", "Pocket003")
pocket4.Profile = sketch7
pocket4.setExpression("Length", "Params.pocket4_length")
pocket4.Reversed = True

# Sketch on an angled plane
sketch8 = body.newObject("Sketcher::SketchObject", "Sketch007")
sketch8.Placement = App.Placement(V(-1.511067, 0.623157, 0), App.Rotation(V(-0.381248146, -0.924472742, 0), V(0, 0, 1), V(-0.924472742, 0.381248146, 0), "ZXY"))
sketch8.addGeometry(Part.Circle(V(44.2, 2, 0), V(0, 0, 1), 1.5), False)
sketch8.addConstraint([
    Sketcher.Constraint("Diameter", 0, Q("3 mm")),
    Sketcher.Constraint("DistanceY", -1, 1, 0, 3, Q("2 mm")),
    Sketcher.Constraint("DistanceX", -1, 1, 0, 3, Q("44.199342 mm")),
])
sketch8.setExpression("Constraints[0]", "Params.sketch8_diameter")
pocket5 = body.newObject("PartDesign::Pocket", "Pocket004")
pocket5.Profile = sketch8
pocket5.setExpression("Length", "Params.pocket5_length")

# Sketch on an angled plane
sketch9 = body.newObject("Sketcher::SketchObject", "Sketch008")
sketch9.Placement = App.Placement(V(-1.511067, 0.623157, 0), App.Rotation(V(-0.381248146, -0.924472742, 0), V(0, 0, 1), V(-0.924472742, 0.381248146, 0), "ZXY"))
sketch9.addGeometry(Part.Circle(V(44.2, 2, 0), V(0, 0, 1), 1.5), False)
sketch9.addConstraint([
    Sketcher.Constraint("Diameter", 0, Q("3 mm")),
    Sketcher.Constraint("DistanceY", -1, 1, 0, 3, Q("2 mm")),
    Sketcher.Constraint("DistanceX", -1, 1, 0, 3, Q("44.199342 mm")),
])
sketch9.setExpression("Constraints[0]", "Params.sketch9_diameter")
pocket6 = body.newObject("PartDesign::Pocket", "Pocket005")
pocket6.Profile = sketch9
pocket6.setExpression("Length", "Params.pocket6_length")
pocket6.Reversed = True

# Sketch on an angled plane
sketch10 = body.newObject("Sketcher::SketchObject", "Sketch009")
sketch10.Placement = App.Placement(V(-51.939047, -43.901034, 0), App.Rotation(V(-0.645536058, 0.763729794, 0), V(0, 0, 1), V(0.763729794, 0.645536058, 0), "ZXY"))
sketch10.addGeometry(Part.Circle(V(-2.6, 2, 0), V(0, 0, 1), 1.5), False)
sketch10.addConstraint([
    Sketcher.Constraint("Diameter", 0, Q("3 mm")),
    Sketcher.Constraint("DistanceY", -1, 1, 0, 3, Q("2 mm")),
    Sketcher.Constraint("DistanceX", 0, 3, -1, 1, Q("2.576017 mm")),
])
sketch10.setExpression("Constraints[0]", "Params.sketch10_diameter")
pocket7 = body.newObject("PartDesign::Pocket", "Pocket006")
pocket7.Profile = sketch10
pocket7.setExpression("Length", "Params.pocket7_length")

# Sketch on an angled plane
sketch11 = body.newObject("Sketcher::SketchObject", "Sketch010")
sketch11.Placement = App.Placement(V(-51.939047, -43.901034, 0), App.Rotation(V(-0.645536058, 0.763729794, 0), V(0, 0, 1), V(0.763729794, 0.645536058, 0), "ZXY"))
sketch11.addGeometry(Part.Circle(V(-2.6, 2, 0), V(0, 0, 1), 1.5), False)
sketch11.addConstraint([
    Sketcher.Constraint("Diameter", 0, Q("3 mm")),
    Sketcher.Constraint("DistanceY", -1, 1, 0, 3, Q("2 mm")),
    Sketcher.Constraint("DistanceX", 0, 3, -1, 1, Q("2.576017 mm")),
])
sketch11.setExpression("Constraints[0]", "Params.sketch11_diameter")
pocket8 = body.newObject("PartDesign::Pocket", "Pocket007")
pocket8.Profile = sketch11
pocket8.setExpression("Length", "Params.pocket8_length")
pocket8.Reversed = True

doc.recompute()
